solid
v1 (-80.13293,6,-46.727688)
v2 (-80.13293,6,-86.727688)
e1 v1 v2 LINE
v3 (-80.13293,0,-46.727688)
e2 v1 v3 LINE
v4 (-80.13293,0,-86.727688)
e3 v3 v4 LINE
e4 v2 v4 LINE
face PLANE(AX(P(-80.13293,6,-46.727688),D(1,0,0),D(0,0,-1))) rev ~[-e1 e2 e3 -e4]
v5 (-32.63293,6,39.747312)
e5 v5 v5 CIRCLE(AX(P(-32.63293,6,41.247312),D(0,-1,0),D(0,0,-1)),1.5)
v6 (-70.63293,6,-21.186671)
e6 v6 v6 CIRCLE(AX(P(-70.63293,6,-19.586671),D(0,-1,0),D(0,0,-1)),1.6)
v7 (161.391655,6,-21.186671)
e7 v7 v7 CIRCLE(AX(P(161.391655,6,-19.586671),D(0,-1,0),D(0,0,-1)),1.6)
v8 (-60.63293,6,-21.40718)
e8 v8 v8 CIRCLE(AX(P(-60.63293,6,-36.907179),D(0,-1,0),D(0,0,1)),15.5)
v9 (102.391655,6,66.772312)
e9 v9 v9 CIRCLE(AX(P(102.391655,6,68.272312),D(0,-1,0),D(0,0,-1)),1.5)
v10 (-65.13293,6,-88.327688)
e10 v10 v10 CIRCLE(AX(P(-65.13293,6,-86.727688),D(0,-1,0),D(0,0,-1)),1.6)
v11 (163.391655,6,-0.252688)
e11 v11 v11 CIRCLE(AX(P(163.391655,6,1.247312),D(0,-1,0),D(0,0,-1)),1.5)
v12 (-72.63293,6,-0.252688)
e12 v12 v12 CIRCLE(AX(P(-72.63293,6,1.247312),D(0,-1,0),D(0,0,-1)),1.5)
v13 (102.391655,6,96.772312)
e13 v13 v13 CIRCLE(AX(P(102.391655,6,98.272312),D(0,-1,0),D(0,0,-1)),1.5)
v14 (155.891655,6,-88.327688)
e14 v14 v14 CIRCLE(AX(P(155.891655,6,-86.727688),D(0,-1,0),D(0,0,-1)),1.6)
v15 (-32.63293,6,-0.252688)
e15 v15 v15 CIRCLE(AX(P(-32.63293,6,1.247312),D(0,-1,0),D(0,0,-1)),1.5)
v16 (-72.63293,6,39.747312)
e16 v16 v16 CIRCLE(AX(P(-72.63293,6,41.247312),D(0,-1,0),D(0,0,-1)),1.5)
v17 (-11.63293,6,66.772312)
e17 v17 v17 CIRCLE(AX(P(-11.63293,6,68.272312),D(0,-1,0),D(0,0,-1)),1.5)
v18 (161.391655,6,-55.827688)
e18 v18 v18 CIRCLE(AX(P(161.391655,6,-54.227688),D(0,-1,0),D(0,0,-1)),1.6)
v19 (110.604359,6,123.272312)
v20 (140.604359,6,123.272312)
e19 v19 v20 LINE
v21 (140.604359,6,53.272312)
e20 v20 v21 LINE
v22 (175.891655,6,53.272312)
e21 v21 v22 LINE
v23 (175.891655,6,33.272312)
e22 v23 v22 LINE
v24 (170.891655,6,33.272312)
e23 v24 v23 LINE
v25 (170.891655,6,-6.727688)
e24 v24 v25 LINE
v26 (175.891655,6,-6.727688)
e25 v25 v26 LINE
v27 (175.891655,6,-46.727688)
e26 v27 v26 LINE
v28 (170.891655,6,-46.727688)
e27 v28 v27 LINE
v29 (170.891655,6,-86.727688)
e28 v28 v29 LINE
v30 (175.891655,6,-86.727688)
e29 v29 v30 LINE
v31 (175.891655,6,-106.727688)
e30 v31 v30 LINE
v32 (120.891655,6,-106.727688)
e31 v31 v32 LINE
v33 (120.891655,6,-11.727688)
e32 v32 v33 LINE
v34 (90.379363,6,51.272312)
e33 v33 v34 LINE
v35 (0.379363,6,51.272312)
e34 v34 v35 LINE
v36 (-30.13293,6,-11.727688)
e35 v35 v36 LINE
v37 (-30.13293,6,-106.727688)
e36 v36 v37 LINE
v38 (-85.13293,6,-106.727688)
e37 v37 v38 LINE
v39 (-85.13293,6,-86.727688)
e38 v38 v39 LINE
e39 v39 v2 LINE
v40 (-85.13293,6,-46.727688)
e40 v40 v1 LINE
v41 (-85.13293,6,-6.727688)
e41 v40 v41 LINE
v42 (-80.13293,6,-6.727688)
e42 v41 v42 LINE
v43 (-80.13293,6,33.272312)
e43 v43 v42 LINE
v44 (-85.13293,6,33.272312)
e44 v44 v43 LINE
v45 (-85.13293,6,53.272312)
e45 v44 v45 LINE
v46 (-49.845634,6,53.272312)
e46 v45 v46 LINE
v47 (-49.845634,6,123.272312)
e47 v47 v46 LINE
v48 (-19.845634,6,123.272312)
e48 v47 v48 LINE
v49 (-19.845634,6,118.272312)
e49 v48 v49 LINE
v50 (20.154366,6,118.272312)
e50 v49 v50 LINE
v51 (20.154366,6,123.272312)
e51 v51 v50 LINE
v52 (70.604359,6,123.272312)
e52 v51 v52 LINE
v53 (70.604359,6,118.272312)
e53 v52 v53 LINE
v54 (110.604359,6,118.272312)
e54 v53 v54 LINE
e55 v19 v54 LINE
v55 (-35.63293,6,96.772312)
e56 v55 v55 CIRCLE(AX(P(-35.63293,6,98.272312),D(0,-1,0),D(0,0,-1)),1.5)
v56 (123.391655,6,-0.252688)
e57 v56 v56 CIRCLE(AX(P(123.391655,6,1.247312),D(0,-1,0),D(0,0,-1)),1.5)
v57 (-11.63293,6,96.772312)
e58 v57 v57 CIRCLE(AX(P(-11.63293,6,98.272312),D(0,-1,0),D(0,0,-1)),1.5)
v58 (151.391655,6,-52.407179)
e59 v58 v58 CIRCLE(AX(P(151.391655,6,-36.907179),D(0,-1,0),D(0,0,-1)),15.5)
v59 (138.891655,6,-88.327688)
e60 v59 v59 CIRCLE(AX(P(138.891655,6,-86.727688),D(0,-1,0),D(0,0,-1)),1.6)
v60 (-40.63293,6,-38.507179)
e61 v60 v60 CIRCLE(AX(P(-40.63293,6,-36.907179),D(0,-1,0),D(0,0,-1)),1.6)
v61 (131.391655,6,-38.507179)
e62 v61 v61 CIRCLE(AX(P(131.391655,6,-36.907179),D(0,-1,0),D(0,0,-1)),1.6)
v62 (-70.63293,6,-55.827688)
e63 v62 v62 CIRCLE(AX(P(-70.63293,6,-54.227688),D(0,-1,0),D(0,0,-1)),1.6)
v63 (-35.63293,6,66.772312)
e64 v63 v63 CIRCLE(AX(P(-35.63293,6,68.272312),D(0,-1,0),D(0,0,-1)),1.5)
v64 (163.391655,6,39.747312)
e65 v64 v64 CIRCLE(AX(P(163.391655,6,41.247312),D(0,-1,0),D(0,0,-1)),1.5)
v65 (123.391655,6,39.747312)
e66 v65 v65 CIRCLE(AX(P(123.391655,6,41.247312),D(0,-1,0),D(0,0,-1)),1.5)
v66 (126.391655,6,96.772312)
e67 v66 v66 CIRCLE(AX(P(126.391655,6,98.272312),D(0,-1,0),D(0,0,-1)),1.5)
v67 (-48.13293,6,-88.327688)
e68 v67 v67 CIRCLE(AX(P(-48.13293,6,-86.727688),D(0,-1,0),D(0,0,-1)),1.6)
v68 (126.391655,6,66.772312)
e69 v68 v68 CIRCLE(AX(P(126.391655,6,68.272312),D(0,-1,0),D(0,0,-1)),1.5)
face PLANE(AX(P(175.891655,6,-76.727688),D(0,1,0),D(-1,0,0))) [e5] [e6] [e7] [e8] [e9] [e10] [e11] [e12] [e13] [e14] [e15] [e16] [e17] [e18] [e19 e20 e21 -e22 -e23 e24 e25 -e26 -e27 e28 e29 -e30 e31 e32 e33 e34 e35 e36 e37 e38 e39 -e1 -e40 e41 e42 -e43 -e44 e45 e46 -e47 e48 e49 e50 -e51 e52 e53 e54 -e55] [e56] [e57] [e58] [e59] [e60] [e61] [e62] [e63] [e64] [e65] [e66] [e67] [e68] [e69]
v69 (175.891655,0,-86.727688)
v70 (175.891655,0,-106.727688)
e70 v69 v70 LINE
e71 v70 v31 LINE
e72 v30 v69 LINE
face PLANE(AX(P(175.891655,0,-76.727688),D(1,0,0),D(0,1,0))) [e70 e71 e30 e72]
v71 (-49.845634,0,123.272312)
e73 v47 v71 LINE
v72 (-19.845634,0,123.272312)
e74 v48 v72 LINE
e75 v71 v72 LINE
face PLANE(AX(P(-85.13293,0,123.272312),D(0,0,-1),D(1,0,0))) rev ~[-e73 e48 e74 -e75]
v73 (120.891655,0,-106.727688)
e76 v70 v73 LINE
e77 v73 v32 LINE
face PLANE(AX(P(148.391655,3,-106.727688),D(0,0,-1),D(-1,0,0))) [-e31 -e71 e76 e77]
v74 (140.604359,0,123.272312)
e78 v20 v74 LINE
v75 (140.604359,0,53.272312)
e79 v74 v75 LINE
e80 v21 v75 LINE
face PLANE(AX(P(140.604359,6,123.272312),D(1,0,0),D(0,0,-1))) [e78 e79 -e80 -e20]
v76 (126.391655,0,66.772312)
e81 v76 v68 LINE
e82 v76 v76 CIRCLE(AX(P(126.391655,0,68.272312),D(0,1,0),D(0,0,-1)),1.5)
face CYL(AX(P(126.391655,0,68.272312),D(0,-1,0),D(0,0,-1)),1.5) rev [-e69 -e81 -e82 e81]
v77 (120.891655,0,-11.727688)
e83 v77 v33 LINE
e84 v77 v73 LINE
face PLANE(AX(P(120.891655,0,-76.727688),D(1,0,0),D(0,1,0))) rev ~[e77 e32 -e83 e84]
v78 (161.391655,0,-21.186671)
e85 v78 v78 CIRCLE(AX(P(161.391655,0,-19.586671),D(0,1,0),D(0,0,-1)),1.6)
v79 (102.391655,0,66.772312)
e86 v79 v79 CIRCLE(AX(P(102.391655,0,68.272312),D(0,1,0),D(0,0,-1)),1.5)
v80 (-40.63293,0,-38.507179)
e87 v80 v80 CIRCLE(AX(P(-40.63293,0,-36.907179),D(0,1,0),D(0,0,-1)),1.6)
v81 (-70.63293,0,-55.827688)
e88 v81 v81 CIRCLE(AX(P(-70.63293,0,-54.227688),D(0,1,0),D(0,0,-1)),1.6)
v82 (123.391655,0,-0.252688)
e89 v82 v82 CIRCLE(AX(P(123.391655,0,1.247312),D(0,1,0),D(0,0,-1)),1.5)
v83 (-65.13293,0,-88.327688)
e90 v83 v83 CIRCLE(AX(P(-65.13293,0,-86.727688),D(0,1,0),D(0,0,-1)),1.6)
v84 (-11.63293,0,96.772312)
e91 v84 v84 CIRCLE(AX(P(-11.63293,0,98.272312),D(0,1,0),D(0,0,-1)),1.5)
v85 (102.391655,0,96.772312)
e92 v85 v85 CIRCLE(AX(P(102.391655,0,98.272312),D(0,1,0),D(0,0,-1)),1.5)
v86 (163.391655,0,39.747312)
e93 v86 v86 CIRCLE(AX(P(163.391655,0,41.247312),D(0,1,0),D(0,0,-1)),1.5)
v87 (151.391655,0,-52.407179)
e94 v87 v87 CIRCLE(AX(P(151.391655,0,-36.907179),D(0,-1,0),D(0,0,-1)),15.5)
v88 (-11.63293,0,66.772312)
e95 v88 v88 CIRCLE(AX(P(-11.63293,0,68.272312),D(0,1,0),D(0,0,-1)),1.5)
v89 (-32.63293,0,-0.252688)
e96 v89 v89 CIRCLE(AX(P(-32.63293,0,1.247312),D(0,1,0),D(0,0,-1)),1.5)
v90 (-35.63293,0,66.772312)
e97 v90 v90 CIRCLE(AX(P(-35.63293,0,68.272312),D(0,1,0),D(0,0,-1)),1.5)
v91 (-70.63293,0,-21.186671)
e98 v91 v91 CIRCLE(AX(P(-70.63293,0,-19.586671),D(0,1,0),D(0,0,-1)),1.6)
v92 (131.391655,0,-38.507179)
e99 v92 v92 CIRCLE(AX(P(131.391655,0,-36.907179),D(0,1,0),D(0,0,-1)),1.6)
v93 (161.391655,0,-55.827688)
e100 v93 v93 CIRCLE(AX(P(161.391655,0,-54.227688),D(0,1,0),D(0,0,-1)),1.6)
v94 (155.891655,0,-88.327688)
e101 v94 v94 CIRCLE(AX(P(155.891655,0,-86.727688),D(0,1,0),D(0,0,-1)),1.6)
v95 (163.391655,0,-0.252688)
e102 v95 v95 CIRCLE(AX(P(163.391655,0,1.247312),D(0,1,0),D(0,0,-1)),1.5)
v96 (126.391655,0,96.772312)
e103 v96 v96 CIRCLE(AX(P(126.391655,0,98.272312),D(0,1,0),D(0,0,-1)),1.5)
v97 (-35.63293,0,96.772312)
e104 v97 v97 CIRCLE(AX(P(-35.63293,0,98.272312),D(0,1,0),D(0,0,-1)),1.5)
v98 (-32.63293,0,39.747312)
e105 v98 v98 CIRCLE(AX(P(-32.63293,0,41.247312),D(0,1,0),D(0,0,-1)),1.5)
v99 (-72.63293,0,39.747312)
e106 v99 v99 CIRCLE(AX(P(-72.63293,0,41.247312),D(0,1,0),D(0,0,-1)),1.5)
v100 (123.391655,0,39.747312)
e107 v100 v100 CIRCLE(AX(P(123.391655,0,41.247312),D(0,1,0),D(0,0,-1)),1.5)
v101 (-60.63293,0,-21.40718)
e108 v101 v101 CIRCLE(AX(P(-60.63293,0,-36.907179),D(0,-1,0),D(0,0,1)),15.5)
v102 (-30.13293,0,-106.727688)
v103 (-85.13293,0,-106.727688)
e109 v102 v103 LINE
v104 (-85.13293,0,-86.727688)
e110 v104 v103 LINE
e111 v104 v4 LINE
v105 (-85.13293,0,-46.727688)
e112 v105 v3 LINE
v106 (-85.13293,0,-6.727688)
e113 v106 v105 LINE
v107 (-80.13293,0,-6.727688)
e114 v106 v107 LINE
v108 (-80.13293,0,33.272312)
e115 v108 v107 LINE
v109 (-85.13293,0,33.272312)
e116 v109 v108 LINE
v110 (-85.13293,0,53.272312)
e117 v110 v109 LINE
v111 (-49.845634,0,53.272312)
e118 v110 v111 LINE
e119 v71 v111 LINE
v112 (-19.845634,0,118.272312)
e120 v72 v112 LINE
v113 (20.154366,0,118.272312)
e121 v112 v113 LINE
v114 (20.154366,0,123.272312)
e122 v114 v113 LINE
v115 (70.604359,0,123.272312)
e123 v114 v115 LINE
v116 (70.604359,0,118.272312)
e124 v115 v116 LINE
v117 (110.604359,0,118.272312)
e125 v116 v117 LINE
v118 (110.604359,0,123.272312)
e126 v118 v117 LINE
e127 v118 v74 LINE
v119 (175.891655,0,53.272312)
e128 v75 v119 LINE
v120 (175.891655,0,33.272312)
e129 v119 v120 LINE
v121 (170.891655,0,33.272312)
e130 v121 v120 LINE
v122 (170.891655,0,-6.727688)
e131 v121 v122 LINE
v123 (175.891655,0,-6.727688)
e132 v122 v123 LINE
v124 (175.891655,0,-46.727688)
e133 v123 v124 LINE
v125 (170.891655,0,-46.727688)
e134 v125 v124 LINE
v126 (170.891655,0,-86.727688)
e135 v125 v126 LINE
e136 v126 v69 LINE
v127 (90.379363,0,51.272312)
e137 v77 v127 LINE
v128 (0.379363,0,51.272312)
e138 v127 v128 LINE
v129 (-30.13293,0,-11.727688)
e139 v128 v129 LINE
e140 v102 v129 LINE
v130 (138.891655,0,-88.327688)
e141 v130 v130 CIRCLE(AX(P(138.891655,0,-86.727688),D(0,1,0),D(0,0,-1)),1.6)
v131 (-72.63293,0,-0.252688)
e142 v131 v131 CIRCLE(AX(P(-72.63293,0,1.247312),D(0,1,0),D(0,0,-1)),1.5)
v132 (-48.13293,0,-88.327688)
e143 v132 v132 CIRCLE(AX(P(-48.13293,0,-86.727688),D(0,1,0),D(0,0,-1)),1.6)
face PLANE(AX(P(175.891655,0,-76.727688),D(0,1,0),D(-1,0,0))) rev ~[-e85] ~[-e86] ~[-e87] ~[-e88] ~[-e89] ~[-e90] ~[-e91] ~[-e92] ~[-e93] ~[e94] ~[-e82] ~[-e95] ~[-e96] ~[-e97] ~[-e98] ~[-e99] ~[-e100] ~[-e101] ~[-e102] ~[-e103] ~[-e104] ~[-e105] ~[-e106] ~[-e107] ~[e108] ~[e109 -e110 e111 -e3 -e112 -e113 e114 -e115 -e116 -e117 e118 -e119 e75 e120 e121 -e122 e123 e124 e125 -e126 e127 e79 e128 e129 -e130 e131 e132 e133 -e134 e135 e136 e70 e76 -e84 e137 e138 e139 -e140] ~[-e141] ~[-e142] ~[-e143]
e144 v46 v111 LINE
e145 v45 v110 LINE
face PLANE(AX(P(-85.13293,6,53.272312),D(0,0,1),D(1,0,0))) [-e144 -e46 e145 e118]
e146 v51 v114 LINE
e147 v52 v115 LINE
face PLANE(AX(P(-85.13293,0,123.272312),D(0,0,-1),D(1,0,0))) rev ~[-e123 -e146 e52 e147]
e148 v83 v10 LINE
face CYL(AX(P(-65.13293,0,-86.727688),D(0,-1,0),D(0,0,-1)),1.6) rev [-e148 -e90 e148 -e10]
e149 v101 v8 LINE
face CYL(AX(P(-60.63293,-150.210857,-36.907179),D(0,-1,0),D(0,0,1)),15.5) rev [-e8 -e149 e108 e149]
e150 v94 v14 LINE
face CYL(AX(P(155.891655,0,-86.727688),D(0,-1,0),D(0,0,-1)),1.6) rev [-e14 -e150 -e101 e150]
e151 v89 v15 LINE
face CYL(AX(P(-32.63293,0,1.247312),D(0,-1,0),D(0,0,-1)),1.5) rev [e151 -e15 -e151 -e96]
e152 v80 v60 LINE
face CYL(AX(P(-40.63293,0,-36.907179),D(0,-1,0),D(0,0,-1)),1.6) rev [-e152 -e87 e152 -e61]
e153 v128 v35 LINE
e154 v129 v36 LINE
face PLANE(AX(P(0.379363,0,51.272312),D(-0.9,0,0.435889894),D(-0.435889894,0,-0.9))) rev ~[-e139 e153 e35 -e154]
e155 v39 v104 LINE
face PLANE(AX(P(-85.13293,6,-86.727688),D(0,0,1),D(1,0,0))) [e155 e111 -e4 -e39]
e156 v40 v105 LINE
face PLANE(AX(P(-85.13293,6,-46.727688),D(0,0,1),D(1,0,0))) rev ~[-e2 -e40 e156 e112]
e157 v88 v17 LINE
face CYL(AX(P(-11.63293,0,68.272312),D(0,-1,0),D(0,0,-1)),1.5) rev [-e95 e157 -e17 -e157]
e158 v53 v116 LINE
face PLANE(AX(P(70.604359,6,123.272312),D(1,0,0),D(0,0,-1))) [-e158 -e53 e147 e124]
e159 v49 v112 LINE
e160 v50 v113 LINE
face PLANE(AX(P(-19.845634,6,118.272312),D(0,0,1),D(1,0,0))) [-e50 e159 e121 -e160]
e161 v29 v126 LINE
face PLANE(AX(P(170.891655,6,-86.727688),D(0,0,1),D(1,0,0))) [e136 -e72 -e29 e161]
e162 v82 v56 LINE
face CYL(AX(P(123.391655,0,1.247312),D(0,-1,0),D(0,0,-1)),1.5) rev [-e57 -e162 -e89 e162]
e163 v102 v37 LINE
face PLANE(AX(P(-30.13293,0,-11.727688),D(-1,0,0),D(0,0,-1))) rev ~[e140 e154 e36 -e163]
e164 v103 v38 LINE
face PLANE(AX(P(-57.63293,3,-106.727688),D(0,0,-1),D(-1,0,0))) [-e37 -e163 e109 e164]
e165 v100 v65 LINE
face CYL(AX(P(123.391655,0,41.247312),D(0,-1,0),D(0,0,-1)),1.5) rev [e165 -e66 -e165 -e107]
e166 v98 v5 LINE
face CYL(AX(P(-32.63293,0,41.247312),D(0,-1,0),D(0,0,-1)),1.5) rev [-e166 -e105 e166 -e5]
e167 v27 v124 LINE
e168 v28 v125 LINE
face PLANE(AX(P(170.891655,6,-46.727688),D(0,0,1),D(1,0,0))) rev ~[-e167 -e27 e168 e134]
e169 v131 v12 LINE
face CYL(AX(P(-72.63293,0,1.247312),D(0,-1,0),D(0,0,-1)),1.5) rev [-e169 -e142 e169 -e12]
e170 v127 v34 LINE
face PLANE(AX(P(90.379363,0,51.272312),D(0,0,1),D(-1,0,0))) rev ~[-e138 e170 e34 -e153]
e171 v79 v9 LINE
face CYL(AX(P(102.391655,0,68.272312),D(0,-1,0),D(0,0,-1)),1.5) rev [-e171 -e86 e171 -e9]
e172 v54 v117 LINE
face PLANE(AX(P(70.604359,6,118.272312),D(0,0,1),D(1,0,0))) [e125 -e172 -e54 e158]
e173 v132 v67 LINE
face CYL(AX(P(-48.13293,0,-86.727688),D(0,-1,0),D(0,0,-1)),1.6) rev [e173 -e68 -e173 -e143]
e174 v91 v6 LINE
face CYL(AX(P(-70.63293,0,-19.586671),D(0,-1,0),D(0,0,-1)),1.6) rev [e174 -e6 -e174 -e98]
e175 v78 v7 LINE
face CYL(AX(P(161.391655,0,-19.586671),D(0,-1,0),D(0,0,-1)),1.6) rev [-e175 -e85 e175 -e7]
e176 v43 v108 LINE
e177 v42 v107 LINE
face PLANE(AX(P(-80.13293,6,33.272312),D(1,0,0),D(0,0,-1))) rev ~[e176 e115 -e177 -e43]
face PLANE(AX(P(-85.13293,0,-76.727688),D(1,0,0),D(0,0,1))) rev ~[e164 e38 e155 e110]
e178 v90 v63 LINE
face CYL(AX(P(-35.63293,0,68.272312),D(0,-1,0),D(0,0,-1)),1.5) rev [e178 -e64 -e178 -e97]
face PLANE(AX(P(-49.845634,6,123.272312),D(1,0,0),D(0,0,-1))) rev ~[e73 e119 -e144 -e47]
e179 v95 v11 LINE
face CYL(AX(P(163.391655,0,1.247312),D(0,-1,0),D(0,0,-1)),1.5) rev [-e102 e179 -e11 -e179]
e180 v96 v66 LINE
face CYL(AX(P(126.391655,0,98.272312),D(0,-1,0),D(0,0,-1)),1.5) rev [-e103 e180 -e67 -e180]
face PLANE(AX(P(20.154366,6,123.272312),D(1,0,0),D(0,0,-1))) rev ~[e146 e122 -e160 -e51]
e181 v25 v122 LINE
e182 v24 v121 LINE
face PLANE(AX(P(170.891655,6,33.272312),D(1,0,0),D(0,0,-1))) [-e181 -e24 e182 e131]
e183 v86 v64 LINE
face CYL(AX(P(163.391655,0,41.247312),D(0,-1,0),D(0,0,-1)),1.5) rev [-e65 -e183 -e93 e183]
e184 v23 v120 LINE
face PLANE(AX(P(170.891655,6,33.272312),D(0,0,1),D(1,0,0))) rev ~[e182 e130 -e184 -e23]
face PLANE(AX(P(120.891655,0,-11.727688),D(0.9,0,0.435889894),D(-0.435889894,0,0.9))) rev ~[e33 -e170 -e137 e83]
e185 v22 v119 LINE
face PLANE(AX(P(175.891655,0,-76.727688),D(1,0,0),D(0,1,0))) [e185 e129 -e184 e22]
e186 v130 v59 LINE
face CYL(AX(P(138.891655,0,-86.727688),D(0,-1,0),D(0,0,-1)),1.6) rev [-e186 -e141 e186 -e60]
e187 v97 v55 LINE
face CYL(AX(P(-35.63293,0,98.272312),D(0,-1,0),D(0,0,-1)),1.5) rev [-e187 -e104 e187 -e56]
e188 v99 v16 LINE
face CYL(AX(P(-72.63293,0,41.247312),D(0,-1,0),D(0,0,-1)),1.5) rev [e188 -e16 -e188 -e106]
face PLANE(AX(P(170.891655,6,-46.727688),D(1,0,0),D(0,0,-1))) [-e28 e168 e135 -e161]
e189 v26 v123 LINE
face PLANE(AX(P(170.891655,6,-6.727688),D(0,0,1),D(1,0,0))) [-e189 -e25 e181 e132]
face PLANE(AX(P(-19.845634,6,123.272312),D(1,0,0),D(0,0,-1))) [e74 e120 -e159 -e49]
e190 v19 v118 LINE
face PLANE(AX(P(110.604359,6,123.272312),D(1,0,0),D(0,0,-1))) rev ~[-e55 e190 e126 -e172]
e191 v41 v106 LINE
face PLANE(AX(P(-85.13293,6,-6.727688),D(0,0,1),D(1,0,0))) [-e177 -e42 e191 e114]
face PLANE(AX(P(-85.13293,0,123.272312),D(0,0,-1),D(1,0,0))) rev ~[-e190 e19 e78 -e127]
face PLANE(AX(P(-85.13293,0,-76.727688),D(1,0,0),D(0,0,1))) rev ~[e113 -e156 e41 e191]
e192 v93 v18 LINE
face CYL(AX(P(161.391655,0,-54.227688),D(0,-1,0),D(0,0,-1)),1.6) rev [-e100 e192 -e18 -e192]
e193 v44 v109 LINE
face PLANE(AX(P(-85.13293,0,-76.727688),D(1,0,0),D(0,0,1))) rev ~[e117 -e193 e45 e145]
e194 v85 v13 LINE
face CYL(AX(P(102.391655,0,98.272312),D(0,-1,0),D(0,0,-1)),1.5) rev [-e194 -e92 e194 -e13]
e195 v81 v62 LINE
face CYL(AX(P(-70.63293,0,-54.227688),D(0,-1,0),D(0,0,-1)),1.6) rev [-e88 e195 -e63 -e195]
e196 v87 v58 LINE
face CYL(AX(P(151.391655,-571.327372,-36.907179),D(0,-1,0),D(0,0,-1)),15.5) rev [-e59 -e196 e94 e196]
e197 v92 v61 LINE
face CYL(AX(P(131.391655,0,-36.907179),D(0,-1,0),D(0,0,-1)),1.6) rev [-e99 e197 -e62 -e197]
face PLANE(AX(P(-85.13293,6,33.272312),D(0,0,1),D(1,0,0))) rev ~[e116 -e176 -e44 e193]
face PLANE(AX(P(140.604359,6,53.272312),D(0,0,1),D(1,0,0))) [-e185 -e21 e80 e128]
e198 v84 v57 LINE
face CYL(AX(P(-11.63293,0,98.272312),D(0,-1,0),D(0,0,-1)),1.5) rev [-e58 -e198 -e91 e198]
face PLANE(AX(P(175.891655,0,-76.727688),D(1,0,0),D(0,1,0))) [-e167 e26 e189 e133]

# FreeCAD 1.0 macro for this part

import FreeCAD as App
import Part
import Sketcher

V = App.Vector

doc = App.newDocument("Part")
params = doc.addObject("Spreadsheet::Sheet", "Params")
for row, (alias, value) in enumerate([
    ("sketch1_width", "55 mm"),
    ("sketch1_width2", "90 mm"),
    ("sketch1_height", "200 mm"),
    ("sketch1_height2", "65 mm"),
    ("sketch1_length", "70 mm"),
    ("pad1_length", "6 mm"),
    ("sketch2_height", "70 mm"),
    ("pocket1_length", "10 mm"),
    ("sketch3_width", "55 mm"),
    ("sketch3_height", "6 mm"),
    ("pad2_length", "30 mm"),
    ("sketch4_width", "5 mm"),
    ("sketch4_width2", "40 mm"),
    ("pocket2_length", "10 mm"),
    ("sketch5_diameter", "3 mm"),
    ("pocket3_length", "10 mm"),
    ("sketch6_diameter", "3.2 mm"),
    ("pocket4_length", "27 mm"),
    ("sketch7_diameter", "3.2 mm"),
    ("pocket5_length", "39 mm"),
    ("sketch8_diameter", "3 mm"),
    ("sketch8_diameter2", "3.2 mm"),
    ("pocket6_length", "10 mm"),
    ("sketch9_diameter", "31 mm"),
    ("sketch10_diameter", "31 mm"),
], start=1):
    params.set(f"A{row}", alias)
    params.set(f"B{row}", "=" + value)
    params.setAlias(f"B{row}", alias)

body = doc.addObject("PartDesign::Body", "Body")

# Sketch on XZ plane
sketch1 = doc.addObject("Sketcher::SketchObject", "Sketch")
body.addObject(sketch1)
sketch1.AttachmentSupport = (doc.XZ_Plane, [""])
sketch1.MapMode = "FlatFace"
sketch1.addGeometry([
    Part.LineSegment(V(-85, -77, 0), V(-85, 123, 0)),  # 0
    Part.LineSegment(V(-85, 123, 0), V(176, 123, 0)),  # 1
    Part.LineSegment(V(176, 123, 0), V(176, -77, 0)),  # 2
    Part.LineSegment(V(176, -77, 0), V(121, -77, 0)),  # 3
    Part.LineSegment(V(121, -77, 0), V(121, -12, 0)),  # 4
    Part.LineSegment(V(121, -12, 0), V(90, 51, 0)),  # 5
    Part.LineSegment(V(90, 51, 0), V(0, 51, 0)),  # 6
    Part.LineSegment(V(0, 51, 0), V(-30, -12, 0)),  # 7
    Part.LineSegment(V(-30, -12, 0), V(-30, -77, 0)),  # 8
    Part.LineSegment(V(-30, -77, 0), V(-85, -77, 0)),  # 9
], False)
sketch1.addConstraint([
    Sketcher.Constraint("Coincident", 0, 2, 1, 1),
    Sketcher.Constraint("Coincident", 1, 2, 2, 1),
    Sketcher.Constraint("Coincident", 2, 2, 3, 1),
    Sketcher.Constraint("Coincident", 3, 2, 4, 1),
    Sketcher.Constraint("Coincident", 4, 2, 5, 1),
    Sketcher.Constraint("Coincident", 5, 2, 6, 1),
    Sketcher.Constraint("Coincident", 6, 2, 7, 1),
    Sketcher.Constraint("Coincident", 7, 2, 8, 1),
    Sketcher.Constraint("Coincident", 8, 2, 9, 1),
    Sketcher.Constraint("Coincident", 9, 2, 0, 1),
    Sketcher.Constraint("Vertical", 0),
    Sketcher.Constraint("Horizontal", 1),
    Sketcher.Constraint("Vertical", 2),
    Sketcher.Constraint("Horizontal", 3),
    Sketcher.Constraint("Vertical", 4),
    Sketcher.Constraint("Horizontal", 6),
    Sketcher.Constraint("Vertical", 8),
    Sketcher.Constraint("Horizontal", 9),
    Sketcher.Constraint("Horizontal", 4, 2, 7, 2),
    Sketcher.Constraint("Horizontal", 3, 2, 8, 2),
    Sketcher.Constraint("Equal", 3, 9),
    Sketcher.Constraint("Equal", 5, 7),
    Sketcher.Constraint("DistanceX", 3, 2, 3, 1, 55.0),
    Sketcher.Constraint("DistanceX", 6, 2, 6, 1, 90.0),
    Sketcher.Constraint("DistanceY", 0, 1, 0, 2, 200.0),
    Sketcher.Constraint("DistanceY", 4, 1, 4, 2, 65.0),
    Sketcher.Constraint("Distance", 5, 70.0),
    Sketcher.Constraint("DistanceY", 4, 2, 5, 2, 63.0),
    Sketcher.Constraint("DistanceX", 0, 2, -1, 1, 85.13293),
    Sketcher.Constraint("DistanceY", -1, 1, 0, 2, 123.272312),
])
sketch1.setExpression("Constraints[22]", "Params.sketch1_width")
sketch1.setExpression("Constraints[23]", "Params.sketch1_width2")
sketch1.setExpression("Constraints[24]", "Params.sketch1_height")
sketch1.setExpression("Constraints[25]", "Params.sketch1_height2")
sketch1.setExpression("Constraints[26]", "Params.sketch1_length")
pad1 = doc.addObject("PartDesign::Pad", "Pad")
body.addObject(pad1)
pad1.Profile = sketch1
pad1.setExpression("Length", "Params.pad1_length")
pad1.Reversed = True

# Sketch on XZ plane
sketch2 = doc.addObject("Sketcher::SketchObject", "Sketch001")
body.addObject(sketch2)
sketch2.AttachmentSupport = (doc.XZ_Plane, [""])
sketch2.MapMode = "FlatFace"
sketch2.AttachmentOffset = App.Placement(V(0, 0, -6), App.Rotation())
sketch2.addGeometry([
    Part.LineSegment(V(141, 53, 0), V(141, 123, 0)),  # 0
    Part.LineSegment(V(141, 123, 0), V(176, 123, 0)),  # 1
    Part.LineSegment(V(176, 123, 0), V(176, 53, 0)),  # 2
    Part.LineSegment(V(176, 53, 0), V(141, 53, 0)),  # 3
    Part.LineSegment(V(-85, 53, 0), V(-85, 123, 0)),  # 4
    Part.LineSegment(V(-85, 123, 0), V(-50, 123, 0)),  # 5
    Part.LineSegment(V(-50, 123, 0), V(-50, 53, 0)),  # 6
    Part.LineSegment(V(-50, 53, 0), V(-85, 53, 0)),  # 7
], False)
sketch2.addConstraint([
    Sketcher.Constraint("Coincident", 0, 2, 1, 1),
    Sketcher.Constraint("Coincident", 1, 2, 2, 1),
    Sketcher.Constraint("Coincident", 2, 2, 3, 1),
    Sketcher.Constraint("Coincident", 3, 2, 0, 1),
    Sketcher.Constraint("Coincident", 4, 2, 5, 1),
    Sketcher.Constraint("Coincident", 5, 2, 6, 1),
    Sketcher.Constraint("Coincident", 6, 2, 7, 1),
    Sketcher.Constraint("Coincident", 7, 2, 4, 1),
    Sketcher.Constraint("Vertical", 0),
    Sketcher.Constraint("Horizontal", 1),
    Sketcher.Constraint("Vertical", 2),
    Sketcher.Constraint("Horizontal", 3),
    Sketcher.Constraint("Vertical", 4),
    Sketcher.Constraint("Horizontal", 5),
    Sketcher.Constraint("Vertical", 6),
    Sketcher.Constraint("Horizontal", 7),
    Sketcher.Constraint("Horizontal", 1, 2, 4, 2),
    Sketcher.Constraint("Horizontal", 3, 2, 6, 2),
    Sketcher.Constraint("Equal", 3, 5),
    Sketcher.Constraint("DistanceY", 0, 1, 0, 2, 70.0),
    Sketcher.Constraint("DistanceX", 1, 1, 1, 2, 35.287296),
    Sketcher.Constraint("DistanceX", -1, 1, 0, 2, 140.604359),
    Sketcher.Constraint("DistanceX", 4, 2, -1, 1, 85.13293),
    Sketcher.Constraint("DistanceY", -1, 1, 0, 2, 123.272312),
])
sketch2.setExpression("Constraints[19]", "Params.sketch2_height")
pocket1 = doc.addObject("PartDesign::Pocket", "Pocket")
body.addObject(pocket1)
pocket1.Profile = sketch2
pocket1.setExpression("Length", "Params.pocket1_length")
pocket1.Reversed = True

# Sketch on XY plane
sketch3 = doc.addObject("Sketcher::SketchObject", "Sketch002")
body.addObject(sketch3)
sketch3.AttachmentSupport = (doc.XY_Plane, [""])
sketch3.MapMode = "FlatFace"
sketch3.AttachmentOffset = App.Placement(V(0, 0, -76.727688), App.Rotation())
sketch3.addGeometry([
    Part.LineSegment(V(176, 6, 0), V(176, 0, 0)),  # 0
    Part.LineSegment(V(176, 0, 0), V(121, 0, 0)),  # 1
    Part.LineSegment(V(121, 0, 0), V(121, 6, 0)),  # 2
    Part.LineSegment(V(121, 6, 0), V(176, 6, 0)),  # 3
    Part.LineSegment(V(-30, 6, 0), V(-30, 0, 0)),  # 4
    Part.LineSegment(V(-30, 0, 0), V(-85, 0, 0)),  # 5
    Part.LineSegment(V(-85, 0, 0), V(-85, 6, 0)),  # 6
    Part.LineSegment(V(-85, 6, 0), V(-30, 6, 0)),  # 7
], False)
sketch3.addConstraint([
    Sketcher.Constraint("Coincident", 0, 2, 1, 1),
    Sketcher.Constraint("Coincident", 1, 2, 2, 1),
    Sketcher.Constraint("Coincident", 2, 2, 3, 1),
    Sketcher.Constraint("Coincident", 3, 2, 0, 1),
    Sketcher.Constraint("Coincident", 4, 2, 5, 1),
    Sketcher.Constraint("Coincident", 5, 2, 6, 1),
    Sketcher.Constraint("Coincident", 6, 2, 7, 1),
    Sketcher.Constraint("Coincident", 7, 2, 4, 1),
    Sketcher.Constraint("Vertical", 0),
    Sketcher.Constraint("Horizontal", 1),
    Sketcher.Constraint("Vertical", 2),
    Sketcher.Constraint("Horizontal", 3),
    Sketcher.Constraint("Vertical", 4),
    Sketcher.Constraint("Horizontal", 5),
    Sketcher.Constraint("Vertical", 6),
    Sketcher.Constraint("Horizontal", 7),
    Sketcher.Constraint("PointOnObject", 0, 2, -1),
    Sketcher.Constraint("PointOnObject", 4, 2, -1),
    Sketcher.Constraint("Horizontal", 3, 2, 6, 2),
    Sketcher.Constraint("Equal", 3, 5),
    Sketcher.Constraint("DistanceX", 1, 2, 1, 1, 55.0),
    Sketcher.Constraint("DistanceY", 0, 2, 0, 1, 6.0),
    Sketcher.Constraint("DistanceX", 4, 2, -1, 1, 30.13293),
    Sketcher.Constraint("DistanceX", -1, 1, 0, 2, 175.891655),
])
sketch3.setExpression("Constraints[20]", "Params.sketch3_width")
sketch3.setExpression("Constraints[21]", "Params.sketch3_height")
pad2 = doc.addObject("PartDesign::Pad", "Pad001")
body.addObject(pad2)
pad2.Profile = sketch3
pad2.setExpression("Length", "Params.pad2_length")
pad2.Reversed = True

# Sketch on XZ plane
sketch4 = doc.addObject("Sketcher::SketchObject", "Sketch003")
body.addObject(sketch4)
sketch4.AttachmentSupport = (doc.XZ_Plane, [""])
sketch4.MapMode = "FlatFace"
sketch4.AttachmentOffset = App.Placement(V(0, 0, -6), App.Rotation())
sketch4.addGeometry([
    Part.LineSegment(V(-85, -87, 0), V(-85, -47, 0)),  # 0
    Part.LineSegment(V(-85, -47, 0), V(-80, -47, 0)),  # 1
    Part.LineSegment(V(-80, -47, 0), V(-80, -87, 0)),  # 2
    Part.LineSegment(V(-80, -87, 0), V(-85, -87, 0)),  # 3
    Part.LineSegment(V(-85, -7, 0), V(-85, 33, 0)),  # 4
    Part.LineSegment(V(-85, 33, 0), V(-80, 33, 0)),  # 5
    Part.LineSegment(V(-80, 33, 0), V(-80, -7, 0)),  # 6
    Part.LineSegment(V(-80, -7, 0), V(-85, -7, 0)),  # 7
    Part.LineSegment(V(171, -7, 0), V(171, 33, 0)),  # 8
    Part.LineSegment(V(171, 33, 0), V(176, 33, 0)),  # 9
    Part.LineSegment(V(176, 33, 0), V(176, -7, 0)),  # 10
    Part.LineSegment(V(176, -7, 0), V(171, -7, 0)),  # 11
    Part.LineSegment(V(171, -87, 0), V(171, -47, 0)),  # 12
    Part.LineSegment(V(171, -47, 0), V(176, -47, 0)),  # 13
    Part.LineSegment(V(176, -47, 0), V(176, -87, 0)),  # 14
    Part.LineSegment(V(176, -87, 0), V(171, -87, 0)),  # 15
    Part.LineSegment(V(-20, 118, 0), V(-20, 123, 0)),  # 16
    Part.LineSegment(V(-20, 123, 0), V(20, 123, 0)),  # 17
    Part.LineSegment(V(20, 123, 0), V(20, 118, 0)),  # 18
    Part.LineSegment(V(20, 118, 0), V(-20, 118, 0)),  # 19
    Part.LineSegment(V(71, 118, 0), V(71, 123, 0)),  # 20
    Part.LineSegment(V(71, 123, 0), V(111, 123, 0)),  # 21
    Part.LineSegment(V(111, 123, 0), V(111, 118, 0)),  # 22
    Part.LineSegment(V(111, 118, 0), V(71, 118, 0)),  # 23
], False)
sketch4.addConstraint([
    Sketcher.Constraint("Coincident", 0, 2, 1, 1),
    Sketcher.Constraint("Coincident", 1, 2, 2, 1),
    Sketcher.Constraint("Coincident", 2, 2, 3, 1),
    Sketcher.Constraint("Coincident", 3, 2, 0, 1),
    Sketcher.Constraint("Coincident", 4, 2, 5, 1),
    Sketcher.Constraint("Coincident", 5, 2, 6, 1),
    Sketcher.Constraint("Coincident", 6, 2, 7, 1),
    Sketcher.Constraint("Coincident", 7, 2, 4, 1),
    Sketcher.Constraint("Coincident", 8, 2, 9, 1),
    Sketcher.Constraint("Coincident", 9, 2, 10, 1),
    Sketcher.Constraint("Coincident", 10, 2, 11, 1),
    Sketcher.Constraint("Coincident", 11, 2, 8, 1),
    Sketcher.Constraint("Coincident", 12, 2, 13, 1),
    Sketcher.Constraint("Coincident", 13, 2, 14, 1),
    Sketcher.Constraint("Coincident", 14, 2, 15, 1),
    Sketcher.Constraint("Coincident", 15, 2, 12, 1),
    Sketcher.Constraint("Coincident", 16, 2, 17, 1),
    Sketcher.Constraint("Coincident", 17, 2, 18, 1),
    Sketcher.Constraint("Coincident", 18, 2, 19, 1),
    Sketcher.Constraint("Coincident", 19, 2, 16, 1),
    Sketcher.Constraint("Coincident", 20, 2, 21, 1),
    Sketcher.Constraint("Coincident", 21, 2, 22, 1),
    Sketcher.Constraint("Coincident", 22, 2, 23, 1),
    Sketcher.Constraint("Coincident", 23, 2, 20, 1),
    Sketcher.Constraint("Vertical", 0),
    Sketcher.Constraint("Horizontal", 1),
    Sketcher.Constraint("Vertical", 2),
    Sketcher.Constraint("Horizontal", 3),
    Sketcher.Constraint("Vertical", 4),
    Sketcher.Constraint("Horizontal", 5),
    Sketcher.Constraint("Vertical", 6),
    Sketcher.Constraint("Horizontal", 7),
    Sketcher.Constraint("Vertical", 8),
    Sketcher.Constraint("Horizontal", 9),
    Sketcher.Constraint("Vertical", 10),
    Sketcher.Constraint("Horizontal", 11),
    Sketcher.Constraint("Vertical", 12),
    Sketcher.Constraint("Horizontal", 13),
    Sketcher.Constraint("Vertical", 14),
    Sketcher.Constraint("Horizontal", 15),
    Sketcher.Constraint("Vertical", 16),
    Sketcher.Constraint("Horizontal", 17),
    Sketcher.Constraint("Vertical", 18),
    Sketcher.Constraint("Horizontal", 19),
    Sketcher.Constraint("Vertical", 20),
    Sketcher.Constraint("Horizontal", 21),
    Sketcher.Constraint("Vertical", 22),
    Sketcher.Constraint("Horizontal", 23),
    Sketcher.Constraint("Horizontal", 5, 2, 8, 2),
    Sketcher.Constraint("Horizontal", 7, 2, 10, 2),
    Sketcher.Constraint("Horizontal", 1, 2, 12, 2),
    Sketcher.Constraint("Horizontal", 3, 2, 14, 2),
    Sketcher.Constraint("Horizontal", 17, 2, 20, 2),
    Sketcher.Constraint("Horizontal", 19, 2, 22, 2),
    Sketcher.Constraint("Vertical", 3, 2, 4, 2),
    Sketcher.Constraint("Vertical", 2, 2, 5, 2),
    Sketcher.Constraint("Vertical", 11, 2, 12, 2),
    Sketcher.Constraint("Vertical", 10, 2, 13, 2),
    Sketcher.Constraint("Equal", 7, 9),
    Sketcher.Constraint("Equal", 19, 21),
    Sketcher.Constraint("Equal", 23, 0),
    Sketcher.Constraint("Equal", 2, 4),
    Sketcher.Constraint("Equal", 15, 16),
    Sketcher.Constraint("DistanceX", 1, 1, 1, 2, 5.0),
    Sketcher.Constraint("DistanceX", 17, 1, 17, 2, 40.0),
    Sketcher.Constraint("DistanceY", 0, 2, 4, 2, 80.0),
    Sketcher.Constraint("DistanceY", 5, 2, 16, 2, 90.0),
    Sketcher.Constraint("DistanceX", 0, 2, -1, 1, 85.13293),
    Sketcher.Constraint("DistanceX", -1, 1, 20, 2, 70.604359),
    Sketcher.Constraint("DistanceY", 0, 2, -1, 1, 46.727688),
    Sketcher.Constraint("DistanceX", -1, 1, 8, 2, 170.891655),
    Sketcher.Constraint("DistanceX", 16, 2, -1, 1, 19.845634),
])
sketch4.setExpression("Constraints[63]", "Params.sketch4_width")
sketch4.setExpression("Constraints[64]", "Params.sketch4_width2")
pocket2 = doc.addObject("PartDesign::Pocket", "Pocket001")
body.addObject(pocket2)
pocket2.Profile = sketch4
pocket2.setExpression("Length", "Params.pocket2_length")
pocket2.Reversed = True

# Sketch on XZ plane
sketch5 = doc.addObject("Sketcher::SketchObject", "Sketch004")
body.addObject(sketch5)
sketch5.AttachmentSupport = (doc.XZ_Plane, [""])
sketch5.MapMode = "FlatFace"
sketch5.addGeometry([
    Part.Circle(V(-35.6, 68.3, 0), V(0, 0, 1), 1.5),  # 0
    Part.Circle(V(-11.6, 68.3, 0), V(0, 0, 1), 1.5),  # 1
    Part.Circle(V(-11.6, 98.3, 0), V(0, 0, 1), 1.5),  # 2
    Part.Circle(V(-35.6, 98.3, 0), V(0, 0, 1), 1.5),  # 3
    Part.Circle(V(102.4, 68.3, 0), V(0, 0, 1), 1.5),  # 4
    Part.Circle(V(102.4, 98.3, 0), V(0, 0, 1), 1.5),  # 5
    Part.Circle(V(126.4, 98.3, 0), V(0, 0, 1), 1.5),  # 6
    Part.Circle(V(126.4, 68.3, 0), V(0, 0, 1), 1.5),  # 7
], False)
sketch5.addConstraint([
    Sketcher.Constraint("Equal", 0, 1),
    Sketcher.Constraint("Equal", 1, 2),
    Sketcher.Constraint("Equal", 2, 3),
    Sketcher.Constraint("Equal", 3, 4),
    Sketcher.Constraint("Equal", 4, 5),
    Sketcher.Constraint("Equal", 5, 6),
    Sketcher.Constraint("Equal", 6, 7),
    Sketcher.Constraint("Horizontal", 0, 3, 1, 3),
    Sketcher.Constraint("Horizontal", 2, 3, 3, 3),
    Sketcher.Constraint("Horizontal", 1, 3, 4, 3),
    Sketcher.Constraint("Horizontal", 3, 3, 5, 3),
    Sketcher.Constraint("Horizontal", 5, 3, 6, 3),
    Sketcher.Constraint("Horizontal", 4, 3, 7, 3),
    Sketcher.Constraint("Vertical", 1, 3, 2, 3),
    Sketcher.Constraint("Vertical", 0, 3, 3, 3),
    Sketcher.Constraint("Vertical", 4, 3, 5, 3),
    Sketcher.Constraint("Vertical", 6, 3, 7, 3),
    Sketcher.Constraint("Diameter", 0, 3.0),
    Sketcher.Constraint("DistanceX", 0, 3, 1, 3, 24.0),
    Sketcher.Constraint("DistanceY", 1, 3, 2, 3, 30.0),
    Sketcher.Constraint("DistanceX", 5, 3, 6, 3, 24.0),
    Sketcher.Constraint("DistanceX", 0, 3, -1, 1, 35.63293),
    Sketcher.Constraint("DistanceY", -1, 1, 0, 3, 68.272312),
    Sketcher.Constraint("DistanceX", -1, 1, 4, 3, 102.391655),
])
sketch5.setExpression("Constraints[17]", "Params.sketch5_diameter")
pocket3 = doc.addObject("PartDesign::Pocket", "Pocket002")
body.addObject(pocket3)
pocket3.Profile = sketch5
pocket3.setExpression("Length", "Params.pocket3_length")

# Sketch on XZ plane
sketch6 = doc.addObject("Sketcher::SketchObject", "Sketch005")
body.addObject(sketch6)
sketch6.AttachmentSupport = (doc.XZ_Plane, [""])
sketch6.MapMode = "FlatFace"
sketch6.addGeometry([
    Part.Circle(V(138.9, -86.7, 0), V(0, 0, 1), 1.6),
    Part.Circle(V(155.9, -86.7, 0), V(0, 0, 1), 1.6),
], False)
sketch6.addConstraint([
    Sketcher.Constraint("Equal", 0, 1),
    Sketcher.Constraint("Horizontal", 0, 3, 1, 3),
    Sketcher.Constraint("Diameter", 0, 3.2),
    Sketcher.Constraint("DistanceX", 0, 3, 1, 3, 17.0),
    Sketcher.Constraint("DistanceX", -1, 1, 0, 3, 138.891655),
    Sketcher.Constraint("DistanceY", 0, 3, -1, 1, 86.727688),
])
sketch6.setExpression("Constraints[2]", "Params.sketch6_diameter")
pocket4 = doc.addObject("PartDesign::Pocket", "Pocket003")
body.addObject(pocket4)
pocket4.Profile = sketch6
pocket4.setExpression("Length", "Params.pocket4_length")

# Sketch on XZ plane
sketch7 = doc.addObject("Sketcher::SketchObject", "Sketch006")
body.addObject(sketch7)
sketch7.AttachmentSupport = (doc.XZ_Plane, [""])
sketch7.MapMode = "FlatFace"
sketch7.addGeometry([
    Part.Circle(V(-65.1, -86.7, 0), V(0, 0, 1), 1.6),
    Part.Circle(V(-48.1, -86.7, 0), V(0, 0, 1), 1.6),
], False)
sketch7.addConstraint([
    Sketcher.Constraint("Equal", 0, 1),
    Sketcher.Constraint("Horizontal", 0, 3, 1, 3),
    Sketcher.Constraint("Diameter", 0, 3.2),
    Sketcher.Constraint("DistanceX", 0, 3, 1, 3, 17.0),
    Sketcher.Constraint("DistanceX", 0, 3, -1, 1, 65.13293),
    Sketcher.Constraint("DistanceY", 0, 3, -1, 1, 86.727688),
])
sketch7.setExpression("Constraints[2]", "Params.sketch7_diameter")
pocket5 = doc.addObject("PartDesign::Pocket", "Pocket004")
body.addObject(pocket5)
pocket5.Profile = sketch7
pocket5.setExpression("Length", "Params.pocket5_length")

# Sketch on XZ plane
sketch8 = doc.addObject("Sketcher::SketchObject", "Sketch007")
body.addObject(sketch8)
sketch8.AttachmentSupport = (doc.XZ_Plane, [""])
sketch8.MapMode = "FlatFace"
sketch8.addGeometry([
    Part.Circle(V(-70.6, -54.2, 0), V(0, 0, 1), 1.6),  # 0
    Part.Circle(V(-40.6, -36.9, 0), V(0, 0, 1), 1.6),  # 1
    Part.Circle(V(-70.6, -19.6, 0), V(0, 0, 1), 1.6),  # 2
    Part.Circle(V(-72.6, 1.2, 0), V(0, 0, 1), 1.5),  # 3
    Part.Circle(V(-32.6, 1.2, 0), V(0, 0, 1), 1.5),  # 4
    Part.Circle(V(-32.6, 41.2, 0), V(0, 0, 1), 1.5),  # 5
    Part.Circle(V(-72.6, 41.2, 0), V(0, 0, 1), 1.5),  # 6
    Part.Circle(V(163.4, 41.2, 0), V(0, 0, 1), 1.5),  # 7
    Part.Circle(V(123.4, 41.2, 0), V(0, 0, 1), 1.5),  # 8
    Part.Circle(V(123.4, 1.2, 0), V(0, 0, 1), 1.5),  # 9
    Part.Circle(V(163.4, 1.2, 0), V(0, 0, 1), 1.5),  # 10
    Part.Circle(V(161.4, -19.6, 0), V(0, 0, 1), 1.6),  # 11
    Part.Circle(V(131.4, -36.9, 0), V(0, 0, 1), 1.6),  # 12
    Part.Circle(V(161.4, -54.2, 0), V(0, 0, 1), 1.6),  # 13
], False)
sketch8.addConstraint([
    Sketcher.Constraint("Equal", 0, 1),
    Sketcher.Constraint("Equal", 1, 2),
    Sketcher.Constraint("Equal", 3, 4),
    Sketcher.Constraint("Equal", 4, 5),
    Sketcher.Constraint("Equal", 5, 6),
    Sketcher.Constraint("Equal", 6, 7),
    Sketcher.Constraint("Equal", 7, 8),
    Sketcher.Constraint("Equal", 8, 9),
    Sketcher.Constraint("Equal", 9, 10),
    Sketcher.Constraint("Equal", 2, 11),
    Sketcher.Constraint("Equal", 11, 12),
    Sketcher.Constraint("Equal", 12, 13),
    Sketcher.Constraint("Horizontal", 3, 3, 4, 3),
    Sketcher.Constraint("Horizontal", 5, 3, 6, 3),
    Sketcher.Constraint("Horizontal", 6, 3, 7, 3),
    Sketcher.Constraint("Horizontal", 7, 3, 8, 3),
    Sketcher.Constraint("Horizontal", 4, 3, 9, 3),
    Sketcher.Constraint("Horizontal", 9, 3, 10, 3),
    Sketcher.Constraint("Horizontal", 2, 3, 11, 3),
    Sketcher.Constraint("Horizontal", 1, 3, 12, 3),
    Sketcher.Constraint("Horizontal", 0, 3, 13, 3),
    Sketcher.Constraint("Vertical", 0, 3, 2, 3),
    Sketcher.Constraint("Vertical", 4, 3, 5, 3),
    Sketcher.Constraint("Vertical", 3, 3, 6, 3),
    Sketcher.Constraint("Vertical", 8, 3, 9, 3),
    Sketcher.Constraint("Vertical", 7, 3, 10, 3),
    Sketcher.Constraint("Vertical", 11, 3, 13, 3),
    Sketcher.Constraint("Diameter", 3, 3.0),
    Sketcher.Constraint("Diameter", 0, 3.2),
    Sketcher.Constraint("DistanceX", 0, 3, 1, 3, 30.0),
    Sketcher.Constraint("DistanceX", 3, 3, 2, 3, 2.0),
    Sketcher.Constraint("DistanceX", 1, 3, 4, 3, 8.0),
    Sketcher.Constraint("DistanceY", 4, 3, 5, 3, 40.0),
    Sketcher.Constraint("DistanceX", 8, 3, 7, 3, 40.0),
    Sketcher.Constraint("DistanceX", 11, 3, 10, 3, 2.0),
    Sketcher.Constraint("DistanceX", 12, 3, 11, 3, 30.0),
    Sketcher.Constraint("DistanceY", 0, 3, 3, 3, 55.475),
    Sketcher.Constraint("DistanceX", 0, 3, -1, 1, 70.63293),
    Sketcher.Constraint("DistanceY", 1, 3, -1, 1, 36.907179),
    Sketcher.Constraint("DistanceY", 2, 3, -1, 1, 19.586671),
    Sketcher.Constraint("DistanceY", 0, 3, 1, 3, 17.320508),
    Sketcher.Constraint("DistanceX", -1, 1, 7, 3, 163.391655),
])
sketch8.setExpression("Constraints[27]", "Params.sketch8_diameter")
sketch8.setExpression("Constraints[28]", "Params.sketch8_diameter2")
pocket6 = doc.addObject("PartDesign::Pocket", "Pocket005")
body.addObject(pocket6)
pocket6.Profile = sketch8
pocket6.setExpression("Length", "Params.pocket6_length")

# Sketch on XZ plane
sketch9 = doc.addObject("Sketcher::SketchObject", "Sketch008")
body.addObject(sketch9)
sketch9.AttachmentSupport = (doc.XZ_Plane, [""])
sketch9.MapMode = "FlatFace"
sketch9.AttachmentOffset = App.Placement(V(0, 0, 135.210857), App.Rotation())
sketch9.addGeometry(Part.Circle(V(-61, -37, 0), V(0, 0, 1), 16), False)
sketch9.addConstraint([
    Sketcher.Constraint("Diameter", 0, 31.0),
    Sketcher.Constraint("DistanceX", 0, 3, -1, 1, 60.63293),
    Sketcher.Constraint("DistanceY", 0, 3, -1, 1, 36.907179),
])
sketch9.setExpression("Constraints[0]", "Params.sketch9_diameter")
pocket7 = doc.addObject("PartDesign::Pocket", "Pocket006")
body.addObject(pocket7)
pocket7.Profile = sketch9
pocket7.Type = "ThroughAll"
pocket7.Midplane = True

# Sketch on XZ plane
sketch10 = doc.addObject("Sketcher::SketchObject", "Sketch009")
body.addObject(sketch10)
sketch10.AttachmentSupport = (doc.XZ_Plane, [""])
sketch10.MapMode = "FlatFace"
sketch10.AttachmentOffset = App.Placement(V(0, 0, 135.210857), App.Rotation())
sketch10.addGeometry(Part.Circle(V(151, -37, 0), V(0, 0, 1), 16), False)
sketch10.addConstraint([
    Sketcher.Constraint("Diameter", 0, 31.0),
    Sketcher.Constraint("DistanceY", 0, 3, -1, 1, 36.907179),
    Sketcher.Constraint("DistanceX", -1, 1, 0, 3, 151.391655),
])
sketch10.setExpression("Constraints[0]", "Params.sketch10_diameter")
pocket8 = doc.addObject("PartDesign::Pocket", "Pocket007")
body.addObject(pocket8)
pocket8.Profile = sketch10
pocket8.Type = "ThroughAll"
pocket8.Midplane = True

doc.recompute()
